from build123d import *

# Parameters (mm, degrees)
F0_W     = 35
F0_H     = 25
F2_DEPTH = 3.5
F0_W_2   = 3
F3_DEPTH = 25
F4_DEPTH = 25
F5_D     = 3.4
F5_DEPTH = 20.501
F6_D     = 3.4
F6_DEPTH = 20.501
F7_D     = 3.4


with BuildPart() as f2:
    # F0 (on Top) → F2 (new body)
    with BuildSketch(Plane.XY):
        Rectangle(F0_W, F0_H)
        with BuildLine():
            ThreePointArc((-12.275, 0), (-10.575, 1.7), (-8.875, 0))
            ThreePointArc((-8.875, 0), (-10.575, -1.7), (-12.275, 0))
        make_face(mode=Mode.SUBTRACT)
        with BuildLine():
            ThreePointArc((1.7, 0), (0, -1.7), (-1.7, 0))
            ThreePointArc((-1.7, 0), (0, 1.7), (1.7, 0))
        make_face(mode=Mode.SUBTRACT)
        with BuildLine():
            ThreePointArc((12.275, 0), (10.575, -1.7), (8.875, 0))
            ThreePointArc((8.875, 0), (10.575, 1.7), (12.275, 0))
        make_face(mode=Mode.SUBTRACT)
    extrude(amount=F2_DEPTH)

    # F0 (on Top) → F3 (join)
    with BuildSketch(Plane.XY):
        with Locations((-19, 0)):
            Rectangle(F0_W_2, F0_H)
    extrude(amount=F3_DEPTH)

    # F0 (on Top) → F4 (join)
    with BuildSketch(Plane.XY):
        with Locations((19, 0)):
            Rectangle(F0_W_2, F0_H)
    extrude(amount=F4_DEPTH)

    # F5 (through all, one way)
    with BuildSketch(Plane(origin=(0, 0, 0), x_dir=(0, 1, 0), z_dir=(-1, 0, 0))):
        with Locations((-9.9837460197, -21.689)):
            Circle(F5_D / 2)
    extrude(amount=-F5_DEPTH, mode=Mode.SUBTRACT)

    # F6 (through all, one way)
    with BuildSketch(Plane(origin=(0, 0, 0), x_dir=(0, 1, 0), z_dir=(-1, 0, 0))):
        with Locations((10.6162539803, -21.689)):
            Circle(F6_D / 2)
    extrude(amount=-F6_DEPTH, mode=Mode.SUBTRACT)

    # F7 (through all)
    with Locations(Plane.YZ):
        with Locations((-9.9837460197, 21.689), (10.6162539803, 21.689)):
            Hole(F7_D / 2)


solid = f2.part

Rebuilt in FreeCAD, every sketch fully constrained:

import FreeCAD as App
import Part
import Sketcher

V = App.Vector

doc = App.newDocument("Part")
body = doc.addObject("PartDesign::Body", "Body")

sketch1 = body.newObject("Sketcher::SketchObject", "Sketch")
sketch1.AttachmentSupport = (doc.getObject("XY_Plane"), [""])
sketch1.MapMode = "FlatFace"
sketch1.addGeometry(Part.LineSegment(V(-17.5, 12.5, 0), V(-17.5, -12.5, 0)), False)
sketch1.addGeometry(Part.LineSegment(V(-17.5, -12.5, 0), V(17.5, -12.5, 0)), False)
sketch1.addGeometry(Part.LineSegment(V(17.5, -12.5, 0), V(17.5, 12.5, 0)), False)
sketch1.addGeometry(Part.LineSegment(V(17.5, 12.5, 0), V(-17.5, 12.5, 0)), False)
sketch1.addGeometry(Part.Circle(V(10.6, 0, 0), V(0, 0, 1), 1.7), False)
sketch1.addGeometry(Part.Circle(V(-10.6, 0, 0), V(0, 0, 1), 1.7), False)
sketch1.addGeometry(Part.Circle(V(0, 0, 0), V(0, 0, 1), 1.7), False)
sketch1.addConstraint(Sketcher.Constraint("Coincident", 0, 2, 1, 1))
sketch1.addConstraint(Sketcher.Constraint("Coincident", 1, 2, 2, 1))
sketch1.addConstraint(Sketcher.Constraint("Coincident", 2, 2, 3, 1))
sketch1.addConstraint(Sketcher.Constraint("Coincident", 3, 2, 0, 1))
sketch1.addConstraint(Sketcher.Constraint("Vertical", 0))
sketch1.addConstraint(Sketcher.Constraint("Horizontal", 1))
sketch1.addConstraint(Sketcher.Constraint("Vertical", 2))
sketch1.addConstraint(Sketcher.Constraint("Horizontal", 3))
sketch1.addConstraint(Sketcher.Constraint("Coincident", 6, 3, -1, 1))
sketch1.addConstraint(Sketcher.Constraint("Equal", 4, 5))
sketch1.addConstraint(Sketcher.Constraint("Equal", 5, 6))
sketch1.addConstraint(Sketcher.Constraint("Symmetric", 4, 3, 5, 3, -1, 1))
sketch1.addConstraint(Sketcher.Constraint("Symmetric", 0, 2, 2, 2, -1, 1))
sketch1.addConstraint(Sketcher.Constraint("PointOnObject", 4, 3, -1))
sketch1.addConstraint(Sketcher.Constraint("Diameter", 4, 3.4))
sketch1.addConstraint(Sketcher.Constraint("DistanceX", 1, 1, 1, 2, 35.0))
sketch1.addConstraint(Sketcher.Constraint("DistanceY", 0, 2, 0, 1, 25.0))
sketch1.addConstraint(Sketcher.Constraint("DistanceX", 5, 3, 4, 3, 21.15))
pad1 = body.newObject("PartDesign::Pad", "Pad")
pad1.Profile = sketch1
pad1.Length = 3.5

sketch2 = body.newObject("Sketcher::SketchObject", "Sketch001")
sketch2.AttachmentSupport = (doc.getObject("XY_Plane"), [""])
sketch2.MapMode = "FlatFace"
sketch2.addGeometry(Part.LineSegment(V(-20.5, 12.5, 0), V(-20.5, -12.5, 0)), False)
sketch2.addGeometry(Part.LineSegment(V(-20.5, -12.5, 0), V(-17.5, -12.5, 0)), False)
sketch2.addGeometry(Part.LineSegment(V(-17.5, -12.5, 0), V(-17.5, 12.5, 0)), False)
sketch2.addGeometry(Part.LineSegment(V(-17.5, 12.5, 0), V(-20.5, 12.5, 0)), False)
sketch2.addConstraint(Sketcher.Constraint("Coincident", 0, 2, 1, 1))
sketch2.addConstraint(Sketcher.Constraint("Coincident", 1, 2, 2, 1))
sketch2.addConstraint(Sketcher.Constraint("Coincident", 2, 2, 3, 1))
sketch2.addConstraint(Sketcher.Constraint("Coincident", 3, 2, 0, 1))
sketch2.addConstraint(Sketcher.Constraint("Vertical", 0))
sketch2.addConstraint(Sketcher.Constraint("Horizontal", 1))
sketch2.addConstraint(Sketcher.Constraint("Vertical", 2))
sketch2.addConstraint(Sketcher.Constraint("Horizontal", 3))
sketch2.addConstraint(Sketcher.Constraint("DistanceX", 1, 1, 1, 2, 3.0))
sketch2.addConstraint(Sketcher.Constraint("DistanceY", 0, 2, 0, 1, 25.0))
sketch2.addConstraint(Sketcher.Constraint("DistanceX", 0, 2, -1, 1, 20.5))
sketch2.addConstraint(Sketcher.Constraint("DistanceY", 0, 2, -1, 1, 12.5))
pad2 = body.newObject("PartDesign::Pad", "Pad001")
pad2.Profile = sketch2
pad2.Length = 25

sketch3 = body.newObject("Sketcher::SketchObject", "Sketch002")
sketch3.AttachmentSupport = (doc.getObject("XY_Plane"), [""])
sketch3.MapMode = "FlatFace"
sketch3.addGeometry(Part.LineSegment(V(17.5, 12.5, 0), V(17.5, -12.5, 0)), False)
sketch3.addGeometry(Part.LineSegment(V(17.5, -12.5, 0), V(20.5, -12.5, 0)), False)
sketch3.addGeometry(Part.LineSegment(V(20.5, -12.5, 0), V(20.5, 12.5, 0)), False)
sketch3.addGeometry(Part.LineSegment(V(20.5, 12.5, 0), V(17.5, 12.5, 0)), False)
sketch3.addConstraint(Sketcher.Constraint("Coincident", 0, 2, 1, 1))
sketch3.addConstraint(Sketcher.Constraint("Coincident", 1, 2, 2, 1))
sketch3.addConstraint(Sketcher.Constraint("Coincident", 2, 2, 3, 1))
sketch3.addConstraint(Sketcher.Constraint("Coincident", 3, 2, 0, 1))
sketch3.addConstraint(Sketcher.Constraint("Vertical", 0))
sketch3.addConstraint(Sketcher.Constraint("Horizontal", 1))
sketch3.addConstraint(Sketcher.Constraint("Vertical", 2))
sketch3.addConstraint(Sketcher.Constraint("Horizontal", 3))
sketch3.addConstraint(Sketcher.Constraint("DistanceX", 1, 1, 1, 2, 3.0))
sketch3.addConstraint(Sketcher.Constraint("DistanceY", 0, 2, 0, 1, 25.0))
sketch3.addConstraint(Sketcher.Constraint("DistanceX", -1, 1, 0, 2, 17.5))
sketch3.addConstraint(Sketcher.Constraint("DistanceY", 0, 2, -1, 1, 12.5))
pad3 = body.newObject("PartDesign::Pad", "Pad002")
pad3.Profile = sketch3
pad3.Length = 25

sketch4 = body.newObject("Sketcher::SketchObject", "Sketch003")
sketch4.AttachmentSupport = (doc.getObject("YZ_Plane"), [""])
sketch4.MapMode = "FlatFace"
sketch4.addGeometry(Part.Circle(V(-10, 21.7, 0), V(0, 0, 1), 1.7), False)
sketch4.addConstraint(Sketcher.Constraint("Diameter", 0, 3.4))
sketch4.addConstraint(Sketcher.Constraint("DistanceY", -1, 1, 0, 3, 21.689))
sketch4.addConstraint(Sketcher.Constraint("DistanceX", 0, 3, -1, 1, 9.983746))
pocket1 = body.newObject("PartDesign::Pocket", "Pocket")
pocket1.Profile = sketch4
pocket1.Type = "ThroughAll"
pocket1.Reversed = True

sketch5 = body.newObject("Sketcher::SketchObject", "Sketch004")
sketch5.AttachmentSupport = (doc.getObject("YZ_Plane"), [""])
sketch5.MapMode = "FlatFace"
sketch5.addGeometry(Part.Circle(V(10.6, 21.7, 0), V(0, 0, 1), 1.7), False)
sketch5.addConstraint(Sketcher.Constraint("Diameter", 0, 3.4))
sketch5.addConstraint(Sketcher.Constraint("DistanceY", -1, 1, 0, 3, 21.689))
sketch5.addConstraint(Sketcher.Constraint("DistanceX", -1, 1, 0, 3, 10.616254))
pocket2 = body.newObject("PartDesign::Pocket", "Pocket001")
pocket2.Profile = sketch5
pocket2.Type = "ThroughAll"
pocket2.Reversed = True

sketch6 = body.newObject("Sketcher::SketchObject", "Sketch005")
sketch6.AttachmentSupport = (doc.getObject("YZ_Plane"), [""])
sketch6.MapMode = "FlatFace"
sketch6.addGeometry(Part.Circle(V(-10, 21.7, 0), V(0, 0, 1), 1.7), False)
sketch6.addGeometry(Part.Circle(V(10.6, 21.7, 0), V(0, 0, 1), 1.7), False)
sketch6.addConstraint(Sketcher.Constraint("Equal", 0, 1))
sketch6.addConstraint(Sketcher.Constraint("Horizontal", 0, 3, 1, 3))
sketch6.addConstraint(Sketcher.Constraint("Diameter", 0, 3.4))
sketch6.addConstraint(Sketcher.Constraint("DistanceX", 0, 3, 1, 3, 20.6))
sketch6.addConstraint(Sketcher.Constraint("DistanceY", -1, 1, 0, 3, 21.689))
sketch6.addConstraint(Sketcher.Constraint("DistanceX", 0, 3, -1, 1, 9.983746))
doc.recompute()
hole = body.newObject("PartDesign::Hole", "Hole")
hole.Profile = sketch6
hole.ThreadType = "None"
hole.Diameter = 3.4
hole.DepthType = "ThroughAll"

doc.recompute()
